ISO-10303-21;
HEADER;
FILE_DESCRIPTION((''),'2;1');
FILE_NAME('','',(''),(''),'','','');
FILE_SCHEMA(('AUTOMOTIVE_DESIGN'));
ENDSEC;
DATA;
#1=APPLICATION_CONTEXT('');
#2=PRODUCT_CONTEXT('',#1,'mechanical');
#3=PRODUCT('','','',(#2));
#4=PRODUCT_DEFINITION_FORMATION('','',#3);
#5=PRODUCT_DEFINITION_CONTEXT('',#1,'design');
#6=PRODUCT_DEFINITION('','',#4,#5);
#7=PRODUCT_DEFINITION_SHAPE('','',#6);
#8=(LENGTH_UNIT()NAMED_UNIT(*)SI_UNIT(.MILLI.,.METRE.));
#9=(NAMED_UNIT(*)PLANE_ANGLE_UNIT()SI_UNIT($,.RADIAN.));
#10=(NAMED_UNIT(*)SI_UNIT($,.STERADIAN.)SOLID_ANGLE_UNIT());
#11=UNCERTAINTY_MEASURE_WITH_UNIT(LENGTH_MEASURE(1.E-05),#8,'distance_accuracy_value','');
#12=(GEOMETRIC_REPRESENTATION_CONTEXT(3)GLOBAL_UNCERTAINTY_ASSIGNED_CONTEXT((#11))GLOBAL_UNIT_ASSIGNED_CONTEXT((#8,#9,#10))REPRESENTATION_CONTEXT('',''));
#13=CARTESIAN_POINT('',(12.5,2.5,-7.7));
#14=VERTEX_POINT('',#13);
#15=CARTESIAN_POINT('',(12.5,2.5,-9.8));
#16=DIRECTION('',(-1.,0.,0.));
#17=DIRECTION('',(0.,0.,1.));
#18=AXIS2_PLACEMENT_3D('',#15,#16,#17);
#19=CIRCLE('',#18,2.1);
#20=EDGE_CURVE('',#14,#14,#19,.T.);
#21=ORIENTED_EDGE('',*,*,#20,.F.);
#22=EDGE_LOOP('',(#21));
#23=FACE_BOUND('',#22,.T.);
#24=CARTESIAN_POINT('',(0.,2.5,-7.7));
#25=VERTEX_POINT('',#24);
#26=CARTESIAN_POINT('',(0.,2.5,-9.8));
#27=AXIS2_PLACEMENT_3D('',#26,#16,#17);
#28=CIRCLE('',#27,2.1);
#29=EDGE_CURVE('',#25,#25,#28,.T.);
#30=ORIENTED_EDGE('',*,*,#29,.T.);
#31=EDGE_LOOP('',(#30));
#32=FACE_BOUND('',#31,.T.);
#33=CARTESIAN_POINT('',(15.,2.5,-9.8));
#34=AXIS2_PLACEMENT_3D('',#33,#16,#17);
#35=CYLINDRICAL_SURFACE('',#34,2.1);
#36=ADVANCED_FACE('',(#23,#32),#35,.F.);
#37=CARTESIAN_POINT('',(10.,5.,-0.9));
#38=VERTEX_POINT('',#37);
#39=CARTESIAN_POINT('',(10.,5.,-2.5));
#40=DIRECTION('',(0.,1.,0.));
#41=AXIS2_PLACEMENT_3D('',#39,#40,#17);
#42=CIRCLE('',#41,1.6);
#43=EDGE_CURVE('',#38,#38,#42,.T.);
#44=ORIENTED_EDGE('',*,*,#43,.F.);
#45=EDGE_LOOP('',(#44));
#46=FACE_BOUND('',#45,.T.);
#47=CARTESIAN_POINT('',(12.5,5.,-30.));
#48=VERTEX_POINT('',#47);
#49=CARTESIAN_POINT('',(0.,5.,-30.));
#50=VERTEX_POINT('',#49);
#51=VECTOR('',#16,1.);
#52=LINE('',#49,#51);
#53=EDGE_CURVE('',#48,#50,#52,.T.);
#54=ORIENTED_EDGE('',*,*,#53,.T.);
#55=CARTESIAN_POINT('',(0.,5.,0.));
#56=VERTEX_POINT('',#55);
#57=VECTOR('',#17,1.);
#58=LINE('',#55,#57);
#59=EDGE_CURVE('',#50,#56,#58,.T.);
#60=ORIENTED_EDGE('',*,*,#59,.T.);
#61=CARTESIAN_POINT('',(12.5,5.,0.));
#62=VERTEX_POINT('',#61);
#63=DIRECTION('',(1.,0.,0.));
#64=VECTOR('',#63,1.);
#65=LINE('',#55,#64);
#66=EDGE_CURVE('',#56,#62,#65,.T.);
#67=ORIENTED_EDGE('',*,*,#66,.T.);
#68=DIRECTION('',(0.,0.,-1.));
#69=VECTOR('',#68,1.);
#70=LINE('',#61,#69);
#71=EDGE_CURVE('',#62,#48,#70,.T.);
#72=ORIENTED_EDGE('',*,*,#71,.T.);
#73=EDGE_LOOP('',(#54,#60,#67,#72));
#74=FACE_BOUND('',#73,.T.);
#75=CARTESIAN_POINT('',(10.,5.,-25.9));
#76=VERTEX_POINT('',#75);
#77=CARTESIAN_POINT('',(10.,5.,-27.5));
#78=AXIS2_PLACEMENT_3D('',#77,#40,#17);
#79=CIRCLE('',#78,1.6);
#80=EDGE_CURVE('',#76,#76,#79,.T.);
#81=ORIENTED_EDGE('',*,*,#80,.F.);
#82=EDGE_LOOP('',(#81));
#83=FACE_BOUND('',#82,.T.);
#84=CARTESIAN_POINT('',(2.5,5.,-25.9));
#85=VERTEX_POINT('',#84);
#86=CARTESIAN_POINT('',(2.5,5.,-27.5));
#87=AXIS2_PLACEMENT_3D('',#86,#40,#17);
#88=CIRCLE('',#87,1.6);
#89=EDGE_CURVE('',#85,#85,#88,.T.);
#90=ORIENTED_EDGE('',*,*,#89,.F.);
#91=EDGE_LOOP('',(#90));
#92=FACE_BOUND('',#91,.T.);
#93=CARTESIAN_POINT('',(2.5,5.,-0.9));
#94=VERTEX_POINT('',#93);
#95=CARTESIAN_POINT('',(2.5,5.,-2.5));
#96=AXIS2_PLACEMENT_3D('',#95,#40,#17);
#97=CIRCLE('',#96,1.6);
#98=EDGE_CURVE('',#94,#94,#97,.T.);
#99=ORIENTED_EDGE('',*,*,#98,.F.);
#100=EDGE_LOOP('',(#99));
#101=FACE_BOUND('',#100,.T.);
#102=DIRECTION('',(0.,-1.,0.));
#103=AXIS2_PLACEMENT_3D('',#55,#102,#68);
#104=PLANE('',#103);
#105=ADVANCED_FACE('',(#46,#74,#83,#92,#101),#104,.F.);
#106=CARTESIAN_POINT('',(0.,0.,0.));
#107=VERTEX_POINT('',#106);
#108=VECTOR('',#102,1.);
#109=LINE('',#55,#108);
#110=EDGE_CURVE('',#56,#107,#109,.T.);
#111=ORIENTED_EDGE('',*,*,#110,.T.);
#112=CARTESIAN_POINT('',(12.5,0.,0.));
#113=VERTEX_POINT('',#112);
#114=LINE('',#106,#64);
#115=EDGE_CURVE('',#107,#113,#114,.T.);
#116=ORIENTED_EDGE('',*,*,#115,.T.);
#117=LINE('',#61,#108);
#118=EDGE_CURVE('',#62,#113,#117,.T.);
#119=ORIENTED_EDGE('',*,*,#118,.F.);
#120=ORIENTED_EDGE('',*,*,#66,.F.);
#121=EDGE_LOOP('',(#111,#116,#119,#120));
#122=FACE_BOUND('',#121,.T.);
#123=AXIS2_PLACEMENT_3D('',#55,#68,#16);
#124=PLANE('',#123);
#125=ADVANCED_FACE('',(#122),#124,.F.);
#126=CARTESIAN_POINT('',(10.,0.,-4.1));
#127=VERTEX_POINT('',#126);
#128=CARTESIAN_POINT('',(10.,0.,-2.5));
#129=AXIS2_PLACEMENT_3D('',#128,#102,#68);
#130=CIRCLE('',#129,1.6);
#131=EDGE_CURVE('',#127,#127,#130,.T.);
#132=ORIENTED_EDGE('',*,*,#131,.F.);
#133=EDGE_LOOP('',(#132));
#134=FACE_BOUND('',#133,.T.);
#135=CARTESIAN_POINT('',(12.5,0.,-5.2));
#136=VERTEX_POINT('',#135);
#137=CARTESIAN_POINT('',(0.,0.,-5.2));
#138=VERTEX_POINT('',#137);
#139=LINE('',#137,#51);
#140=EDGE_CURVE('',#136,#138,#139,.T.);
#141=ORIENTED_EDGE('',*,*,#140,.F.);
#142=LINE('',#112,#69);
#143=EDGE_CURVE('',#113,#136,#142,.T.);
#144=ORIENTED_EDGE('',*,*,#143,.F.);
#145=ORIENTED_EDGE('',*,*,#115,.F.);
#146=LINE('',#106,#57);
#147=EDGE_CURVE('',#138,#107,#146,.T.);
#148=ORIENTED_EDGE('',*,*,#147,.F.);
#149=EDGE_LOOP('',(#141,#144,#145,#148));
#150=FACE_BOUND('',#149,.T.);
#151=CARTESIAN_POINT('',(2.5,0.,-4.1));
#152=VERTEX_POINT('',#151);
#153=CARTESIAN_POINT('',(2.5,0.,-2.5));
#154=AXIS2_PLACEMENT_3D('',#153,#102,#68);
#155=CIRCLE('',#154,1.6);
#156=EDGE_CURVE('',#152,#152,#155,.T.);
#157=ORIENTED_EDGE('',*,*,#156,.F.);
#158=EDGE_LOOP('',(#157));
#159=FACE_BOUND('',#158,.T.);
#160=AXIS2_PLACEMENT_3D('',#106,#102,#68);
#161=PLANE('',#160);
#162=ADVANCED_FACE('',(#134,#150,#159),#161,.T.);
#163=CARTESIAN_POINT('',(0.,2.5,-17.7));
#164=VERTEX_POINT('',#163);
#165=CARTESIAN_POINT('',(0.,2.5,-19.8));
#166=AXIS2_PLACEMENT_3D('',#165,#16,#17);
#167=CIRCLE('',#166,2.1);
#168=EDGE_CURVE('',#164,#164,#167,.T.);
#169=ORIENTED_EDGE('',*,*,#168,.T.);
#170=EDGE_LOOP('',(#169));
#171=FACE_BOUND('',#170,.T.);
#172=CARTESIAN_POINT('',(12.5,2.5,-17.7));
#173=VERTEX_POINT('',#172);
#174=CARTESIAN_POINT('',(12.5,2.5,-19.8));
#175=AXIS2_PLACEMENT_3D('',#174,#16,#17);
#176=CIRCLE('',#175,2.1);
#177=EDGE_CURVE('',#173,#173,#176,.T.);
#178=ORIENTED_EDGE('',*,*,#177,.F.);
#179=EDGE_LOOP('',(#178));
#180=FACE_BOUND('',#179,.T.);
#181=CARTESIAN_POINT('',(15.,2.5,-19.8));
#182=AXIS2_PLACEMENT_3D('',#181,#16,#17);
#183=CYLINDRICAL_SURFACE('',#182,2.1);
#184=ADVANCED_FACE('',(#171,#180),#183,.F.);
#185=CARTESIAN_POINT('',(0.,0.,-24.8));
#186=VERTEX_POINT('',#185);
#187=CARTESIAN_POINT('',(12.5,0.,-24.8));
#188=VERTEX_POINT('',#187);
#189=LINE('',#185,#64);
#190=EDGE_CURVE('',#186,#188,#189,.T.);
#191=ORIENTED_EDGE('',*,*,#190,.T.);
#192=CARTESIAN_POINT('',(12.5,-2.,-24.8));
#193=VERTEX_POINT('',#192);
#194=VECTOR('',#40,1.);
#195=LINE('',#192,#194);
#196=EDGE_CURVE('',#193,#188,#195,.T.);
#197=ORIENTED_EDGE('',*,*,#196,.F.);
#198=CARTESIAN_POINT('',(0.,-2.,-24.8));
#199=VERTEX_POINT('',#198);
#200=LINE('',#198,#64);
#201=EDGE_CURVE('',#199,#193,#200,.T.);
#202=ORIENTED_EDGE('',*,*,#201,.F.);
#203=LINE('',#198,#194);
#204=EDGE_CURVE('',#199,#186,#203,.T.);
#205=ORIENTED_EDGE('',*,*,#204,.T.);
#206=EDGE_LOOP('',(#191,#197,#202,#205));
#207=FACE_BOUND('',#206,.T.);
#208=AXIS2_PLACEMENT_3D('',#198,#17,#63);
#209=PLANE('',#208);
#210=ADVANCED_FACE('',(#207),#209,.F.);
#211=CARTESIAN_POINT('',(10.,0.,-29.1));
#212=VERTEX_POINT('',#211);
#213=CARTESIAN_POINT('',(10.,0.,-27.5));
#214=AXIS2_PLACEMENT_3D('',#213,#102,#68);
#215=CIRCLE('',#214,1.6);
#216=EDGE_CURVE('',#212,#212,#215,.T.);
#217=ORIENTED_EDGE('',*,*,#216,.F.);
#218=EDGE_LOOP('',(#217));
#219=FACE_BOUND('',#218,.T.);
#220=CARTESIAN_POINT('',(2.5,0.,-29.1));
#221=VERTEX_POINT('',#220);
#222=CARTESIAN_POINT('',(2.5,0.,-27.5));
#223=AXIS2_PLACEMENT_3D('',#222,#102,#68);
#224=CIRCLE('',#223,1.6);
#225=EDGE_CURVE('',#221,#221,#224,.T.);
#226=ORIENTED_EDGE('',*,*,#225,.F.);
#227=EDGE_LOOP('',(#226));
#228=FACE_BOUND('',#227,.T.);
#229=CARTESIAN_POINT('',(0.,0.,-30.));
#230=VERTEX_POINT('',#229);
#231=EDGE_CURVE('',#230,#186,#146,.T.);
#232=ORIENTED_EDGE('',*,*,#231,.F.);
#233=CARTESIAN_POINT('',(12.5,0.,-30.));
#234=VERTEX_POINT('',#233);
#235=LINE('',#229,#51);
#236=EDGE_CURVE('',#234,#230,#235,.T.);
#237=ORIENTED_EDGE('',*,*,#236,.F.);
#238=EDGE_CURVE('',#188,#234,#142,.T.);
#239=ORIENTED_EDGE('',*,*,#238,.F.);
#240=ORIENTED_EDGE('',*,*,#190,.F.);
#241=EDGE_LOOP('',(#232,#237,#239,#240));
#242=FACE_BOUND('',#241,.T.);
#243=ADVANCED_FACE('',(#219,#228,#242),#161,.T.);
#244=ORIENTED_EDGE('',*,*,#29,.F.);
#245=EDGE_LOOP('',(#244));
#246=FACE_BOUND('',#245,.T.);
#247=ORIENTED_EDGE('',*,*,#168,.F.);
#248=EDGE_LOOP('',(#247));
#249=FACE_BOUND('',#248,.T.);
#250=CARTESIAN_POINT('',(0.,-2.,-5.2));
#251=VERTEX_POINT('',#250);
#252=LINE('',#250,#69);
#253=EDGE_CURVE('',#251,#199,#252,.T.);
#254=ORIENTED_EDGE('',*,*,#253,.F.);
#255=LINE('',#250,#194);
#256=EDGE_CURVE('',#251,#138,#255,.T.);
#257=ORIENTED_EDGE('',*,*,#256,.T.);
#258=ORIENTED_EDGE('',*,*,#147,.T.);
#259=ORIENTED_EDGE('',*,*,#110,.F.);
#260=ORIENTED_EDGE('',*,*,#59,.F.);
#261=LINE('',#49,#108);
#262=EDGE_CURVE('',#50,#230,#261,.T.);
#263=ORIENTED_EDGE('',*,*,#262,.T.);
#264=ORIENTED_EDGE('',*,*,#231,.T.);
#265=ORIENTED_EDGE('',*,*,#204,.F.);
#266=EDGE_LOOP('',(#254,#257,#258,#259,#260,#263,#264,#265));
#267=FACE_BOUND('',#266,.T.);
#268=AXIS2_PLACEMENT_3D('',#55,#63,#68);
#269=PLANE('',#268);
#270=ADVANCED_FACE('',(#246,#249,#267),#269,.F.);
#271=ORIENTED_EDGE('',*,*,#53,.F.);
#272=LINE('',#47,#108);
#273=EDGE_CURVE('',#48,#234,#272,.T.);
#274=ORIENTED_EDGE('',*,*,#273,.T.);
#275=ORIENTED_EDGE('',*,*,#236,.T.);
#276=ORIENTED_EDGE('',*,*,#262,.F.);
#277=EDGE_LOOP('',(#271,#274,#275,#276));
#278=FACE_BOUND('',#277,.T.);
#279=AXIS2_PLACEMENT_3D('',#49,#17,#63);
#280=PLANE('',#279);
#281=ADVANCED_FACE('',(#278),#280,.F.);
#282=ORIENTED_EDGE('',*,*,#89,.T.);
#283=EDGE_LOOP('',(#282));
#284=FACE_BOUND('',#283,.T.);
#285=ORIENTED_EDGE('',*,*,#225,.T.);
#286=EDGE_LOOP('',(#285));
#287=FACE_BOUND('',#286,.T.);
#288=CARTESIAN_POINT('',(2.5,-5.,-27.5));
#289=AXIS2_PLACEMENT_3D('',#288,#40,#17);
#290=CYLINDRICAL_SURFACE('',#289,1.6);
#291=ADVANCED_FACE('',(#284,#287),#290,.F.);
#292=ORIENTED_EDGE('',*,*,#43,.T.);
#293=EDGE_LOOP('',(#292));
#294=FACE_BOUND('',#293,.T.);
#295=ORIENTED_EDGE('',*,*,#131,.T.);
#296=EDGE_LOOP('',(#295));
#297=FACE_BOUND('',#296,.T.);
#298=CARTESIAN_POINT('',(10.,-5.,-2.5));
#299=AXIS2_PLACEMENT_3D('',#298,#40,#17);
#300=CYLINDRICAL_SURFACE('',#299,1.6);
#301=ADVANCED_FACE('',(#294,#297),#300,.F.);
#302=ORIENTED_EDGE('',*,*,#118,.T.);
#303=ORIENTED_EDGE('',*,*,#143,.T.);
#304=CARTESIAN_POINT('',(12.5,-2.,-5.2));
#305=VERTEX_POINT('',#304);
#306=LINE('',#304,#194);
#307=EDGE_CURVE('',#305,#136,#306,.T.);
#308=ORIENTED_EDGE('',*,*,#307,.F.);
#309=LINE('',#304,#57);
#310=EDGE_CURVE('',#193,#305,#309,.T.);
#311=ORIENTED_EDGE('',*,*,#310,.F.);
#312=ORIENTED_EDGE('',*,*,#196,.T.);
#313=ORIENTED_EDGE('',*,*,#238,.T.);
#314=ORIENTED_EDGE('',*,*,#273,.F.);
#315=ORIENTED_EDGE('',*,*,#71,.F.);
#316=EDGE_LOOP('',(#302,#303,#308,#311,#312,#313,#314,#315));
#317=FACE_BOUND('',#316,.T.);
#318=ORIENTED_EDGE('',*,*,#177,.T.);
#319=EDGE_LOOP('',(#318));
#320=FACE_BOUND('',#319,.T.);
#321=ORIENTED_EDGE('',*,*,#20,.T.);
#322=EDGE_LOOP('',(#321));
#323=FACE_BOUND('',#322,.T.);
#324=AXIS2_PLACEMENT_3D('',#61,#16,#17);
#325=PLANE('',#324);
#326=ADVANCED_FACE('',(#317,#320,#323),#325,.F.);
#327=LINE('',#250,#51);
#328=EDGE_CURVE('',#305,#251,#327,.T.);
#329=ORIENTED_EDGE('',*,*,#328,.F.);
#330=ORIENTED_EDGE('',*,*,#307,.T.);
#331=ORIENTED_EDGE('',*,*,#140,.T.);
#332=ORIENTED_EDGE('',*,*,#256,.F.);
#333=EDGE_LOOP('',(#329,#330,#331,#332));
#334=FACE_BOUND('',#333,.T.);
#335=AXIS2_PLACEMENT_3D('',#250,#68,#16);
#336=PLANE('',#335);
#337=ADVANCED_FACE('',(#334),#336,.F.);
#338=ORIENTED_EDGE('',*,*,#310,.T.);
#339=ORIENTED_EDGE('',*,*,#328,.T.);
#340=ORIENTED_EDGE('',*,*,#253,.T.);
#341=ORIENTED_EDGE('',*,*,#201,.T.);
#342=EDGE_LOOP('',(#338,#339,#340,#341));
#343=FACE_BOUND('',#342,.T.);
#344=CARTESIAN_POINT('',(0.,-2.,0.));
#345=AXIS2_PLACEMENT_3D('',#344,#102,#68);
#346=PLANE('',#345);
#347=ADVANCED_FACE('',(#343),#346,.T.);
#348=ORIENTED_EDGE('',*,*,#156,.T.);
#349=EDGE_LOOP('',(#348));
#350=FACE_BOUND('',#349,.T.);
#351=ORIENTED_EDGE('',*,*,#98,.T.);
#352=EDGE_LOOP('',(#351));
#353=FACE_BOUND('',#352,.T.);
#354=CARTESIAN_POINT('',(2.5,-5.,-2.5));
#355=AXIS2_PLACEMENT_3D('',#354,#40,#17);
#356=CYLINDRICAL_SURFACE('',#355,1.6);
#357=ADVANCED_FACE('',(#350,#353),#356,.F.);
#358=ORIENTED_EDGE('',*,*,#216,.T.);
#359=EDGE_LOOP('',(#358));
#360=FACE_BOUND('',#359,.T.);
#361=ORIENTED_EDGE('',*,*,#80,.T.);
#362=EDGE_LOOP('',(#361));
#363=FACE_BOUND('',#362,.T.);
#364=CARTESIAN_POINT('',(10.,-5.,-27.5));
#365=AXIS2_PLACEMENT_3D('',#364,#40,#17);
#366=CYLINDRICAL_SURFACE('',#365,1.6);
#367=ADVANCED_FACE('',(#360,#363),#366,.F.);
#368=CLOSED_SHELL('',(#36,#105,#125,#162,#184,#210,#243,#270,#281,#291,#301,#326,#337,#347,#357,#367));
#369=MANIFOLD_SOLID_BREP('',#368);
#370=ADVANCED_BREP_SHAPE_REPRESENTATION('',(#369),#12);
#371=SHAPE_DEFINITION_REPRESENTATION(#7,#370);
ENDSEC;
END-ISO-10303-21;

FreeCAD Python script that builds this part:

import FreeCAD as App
import Part
import Sketcher
from FreeCAD import Vector
Q = App.Units.Quantity

doc = App.newDocument("Part")
body = doc.addObject("PartDesign::Body", "Body")

# Sketch on XZ plane
sketch1 = doc.addObject("Sketcher::SketchObject", "Sketch")
body.addObject(sketch1)
sketch1.AttachmentSupport = (doc.XZ_Plane, [""])
sketch1.MapMode = "FlatFace"
sketch1.addGeometry([
    Part.LineSegment(Vector(0, -30, 0), Vector(0, 0, 0)),
    Part.LineSegment(Vector(0, 0, 0), Vector(12.5, 0, 0)),
    Part.LineSegment(Vector(12.5, 0, 0), Vector(12.5, -30, 0)),
    Part.LineSegment(Vector(12.5, -30, 0), Vector(0, -30, 0)),
], False)
sketch1.addConstraint([
    Sketcher.Constraint("Coincident", 0, 2, 1, 1),
    Sketcher.Constraint("Coincident", 1, 2, 2, 1),
    Sketcher.Constraint("Coincident", 2, 2, 3, 1),
    Sketcher.Constraint("Coincident", 3, 2, 0, 1),
    Sketcher.Constraint("Vertical", 0),
    Sketcher.Constraint("Horizontal", 1),
    Sketcher.Constraint("Vertical", 2),
    Sketcher.Constraint("Horizontal", 3),
    Sketcher.Constraint("Coincident", 0, 2, -1, 1),
    Sketcher.Constraint("DistanceY", 0, 1, 0, 2, Q("30 mm")),
    Sketcher.Constraint("DistanceX", 1, 1, 1, 2, Q("12.5 mm")),
])
pad1 = doc.addObject("PartDesign::Pad", "Pad")
body.addObject(pad1)
pad1.Profile = sketch1
pad1.Length = 5
pad1.Reversed = True

# Sketch on XZ plane
sketch2 = doc.addObject("Sketcher::SketchObject", "Sketch001")
body.addObject(sketch2)
sketch2.AttachmentSupport = (doc.XZ_Plane, [""])
sketch2.MapMode = "FlatFace"
sketch2.addGeometry([
    Part.LineSegment(Vector(0, -5.2, 0), Vector(0, -24.8, 0)),
    Part.LineSegment(Vector(0, -24.8, 0), Vector(12.5, -24.8, 0)),
    Part.LineSegment(Vector(12.5, -24.8, 0), Vector(12.5, -5.2, 0)),
    Part.LineSegment(Vector(12.5, -5.2, 0), Vector(0, -5.2, 0)),
], False)
sketch2.addConstraint([
    Sketcher.Constraint("Coincident", 0, 2, 1, 1),
    Sketcher.Constraint("Coincident", 1, 2, 2, 1),
    Sketcher.Constraint("Coincident", 2, 2, 3, 1),
    Sketcher.Constraint("Coincident", 3, 2, 0, 1),
    Sketcher.Constraint("Vertical", 0),
    Sketcher.Constraint("Horizontal", 1),
    Sketcher.Constraint("Vertical", 2),
    Sketcher.Constraint("Horizontal", 3),
    Sketcher.Constraint("PointOnObject", 0, 2, -2),
    Sketcher.Constraint("DistanceX", 1, 1, 1, 2, Q("12.5 mm")),
    Sketcher.Constraint("DistanceY", 0, 2, 0, 1, Q("19.6 mm")),
    Sketcher.Constraint("DistanceY", 0, 2, -1, 1, Q("24.8 mm")),
])
pad2 = doc.addObject("PartDesign::Pad", "Pad001")
body.addObject(pad2)
pad2.Profile = sketch2
pad2.Length = 2

# Sketch on YZ plane
sketch3 = doc.addObject("Sketcher::SketchObject", "Sketch002")
body.addObject(sketch3)
sketch3.AttachmentSupport = (doc.YZ_Plane, [""])
sketch3.MapMode = "FlatFace"
sketch3.addGeometry([
    Part.Circle(Vector(2.5, -19.8, 0), Vector(0, 0, 1), 2.1),
    Part.Circle(Vector(2.5, -9.8, 0), Vector(0, 0, 1), 2.1),
], False)
sketch3.addConstraint([
    Sketcher.Constraint("Equal", 0, 1),
    Sketcher.Constraint("Vertical", 0, 3, 1, 3),
    Sketcher.Constraint("Diameter", 0, Q("4.2 mm")),
    Sketcher.Constraint("DistanceY", 0, 3, 1, 3, Q("10 mm")),
    Sketcher.Constraint("DistanceX", -1, 1, 0, 3, Q("2.5 mm")),
    Sketcher.Constraint("DistanceY", 0, 3, -1, 1, Q("19.8 mm")),
])
pocket1 = doc.addObject("PartDesign::Pocket", "Pocket")
body.addObject(pocket1)
pocket1.Profile = sketch3
pocket1.Length = 15
pocket1.Reversed = True

# Sketch on XZ plane
sketch4 = doc.addObject("Sketcher::SketchObject", "Sketch003")
body.addObject(sketch4)
sketch4.AttachmentSupport = (doc.XZ_Plane, [""])
sketch4.MapMode = "FlatFace"
sketch4.AttachmentOffset = App.Placement(Vector(0, 0, -5), App.Rotation())
sketch4.addGeometry([
    Part.Circle(Vector(2.5, -27.5, 0), Vector(0, 0, 1), 1.6),
    Part.Circle(Vector(2.5, -2.5, 0), Vector(0, 0, 1), 1.6),
], False)
sketch4.addConstraint([
    Sketcher.Constraint("Equal", 0, 1),
    Sketcher.Constraint("Vertical", 0, 3, 1, 3),
    Sketcher.Constraint("Diameter", 0, Q("3.2 mm")),
    Sketcher.Constraint("DistanceY", 0, 3, 1, 3, Q("25 mm")),
    Sketcher.Constraint("DistanceX", -1, 1, 0, 3, Q("2.5 mm")),
    Sketcher.Constraint("DistanceY", 0, 3, -1, 1, Q("27.5 mm")),
])
pocket2 = doc.addObject("PartDesign::Pocket", "Pocket001")
body.addObject(pocket2)
pocket2.Profile = sketch4
pocket2.Length = 10
pocket2.Reversed = True
doc.recompute()

linearpattern = doc.addObject("PartDesign::LinearPattern", "LinearPattern")
body.addObject(linearpattern)
linearpattern.Originals = [pocket2]
linearpattern.Direction = (doc.X_Axis, [""])
linearpattern.Mode = "offset"
linearpattern.Offset = 7.5
linearpattern.Occurrences = 2
body.Tip = linearpattern

doc.recompute()
